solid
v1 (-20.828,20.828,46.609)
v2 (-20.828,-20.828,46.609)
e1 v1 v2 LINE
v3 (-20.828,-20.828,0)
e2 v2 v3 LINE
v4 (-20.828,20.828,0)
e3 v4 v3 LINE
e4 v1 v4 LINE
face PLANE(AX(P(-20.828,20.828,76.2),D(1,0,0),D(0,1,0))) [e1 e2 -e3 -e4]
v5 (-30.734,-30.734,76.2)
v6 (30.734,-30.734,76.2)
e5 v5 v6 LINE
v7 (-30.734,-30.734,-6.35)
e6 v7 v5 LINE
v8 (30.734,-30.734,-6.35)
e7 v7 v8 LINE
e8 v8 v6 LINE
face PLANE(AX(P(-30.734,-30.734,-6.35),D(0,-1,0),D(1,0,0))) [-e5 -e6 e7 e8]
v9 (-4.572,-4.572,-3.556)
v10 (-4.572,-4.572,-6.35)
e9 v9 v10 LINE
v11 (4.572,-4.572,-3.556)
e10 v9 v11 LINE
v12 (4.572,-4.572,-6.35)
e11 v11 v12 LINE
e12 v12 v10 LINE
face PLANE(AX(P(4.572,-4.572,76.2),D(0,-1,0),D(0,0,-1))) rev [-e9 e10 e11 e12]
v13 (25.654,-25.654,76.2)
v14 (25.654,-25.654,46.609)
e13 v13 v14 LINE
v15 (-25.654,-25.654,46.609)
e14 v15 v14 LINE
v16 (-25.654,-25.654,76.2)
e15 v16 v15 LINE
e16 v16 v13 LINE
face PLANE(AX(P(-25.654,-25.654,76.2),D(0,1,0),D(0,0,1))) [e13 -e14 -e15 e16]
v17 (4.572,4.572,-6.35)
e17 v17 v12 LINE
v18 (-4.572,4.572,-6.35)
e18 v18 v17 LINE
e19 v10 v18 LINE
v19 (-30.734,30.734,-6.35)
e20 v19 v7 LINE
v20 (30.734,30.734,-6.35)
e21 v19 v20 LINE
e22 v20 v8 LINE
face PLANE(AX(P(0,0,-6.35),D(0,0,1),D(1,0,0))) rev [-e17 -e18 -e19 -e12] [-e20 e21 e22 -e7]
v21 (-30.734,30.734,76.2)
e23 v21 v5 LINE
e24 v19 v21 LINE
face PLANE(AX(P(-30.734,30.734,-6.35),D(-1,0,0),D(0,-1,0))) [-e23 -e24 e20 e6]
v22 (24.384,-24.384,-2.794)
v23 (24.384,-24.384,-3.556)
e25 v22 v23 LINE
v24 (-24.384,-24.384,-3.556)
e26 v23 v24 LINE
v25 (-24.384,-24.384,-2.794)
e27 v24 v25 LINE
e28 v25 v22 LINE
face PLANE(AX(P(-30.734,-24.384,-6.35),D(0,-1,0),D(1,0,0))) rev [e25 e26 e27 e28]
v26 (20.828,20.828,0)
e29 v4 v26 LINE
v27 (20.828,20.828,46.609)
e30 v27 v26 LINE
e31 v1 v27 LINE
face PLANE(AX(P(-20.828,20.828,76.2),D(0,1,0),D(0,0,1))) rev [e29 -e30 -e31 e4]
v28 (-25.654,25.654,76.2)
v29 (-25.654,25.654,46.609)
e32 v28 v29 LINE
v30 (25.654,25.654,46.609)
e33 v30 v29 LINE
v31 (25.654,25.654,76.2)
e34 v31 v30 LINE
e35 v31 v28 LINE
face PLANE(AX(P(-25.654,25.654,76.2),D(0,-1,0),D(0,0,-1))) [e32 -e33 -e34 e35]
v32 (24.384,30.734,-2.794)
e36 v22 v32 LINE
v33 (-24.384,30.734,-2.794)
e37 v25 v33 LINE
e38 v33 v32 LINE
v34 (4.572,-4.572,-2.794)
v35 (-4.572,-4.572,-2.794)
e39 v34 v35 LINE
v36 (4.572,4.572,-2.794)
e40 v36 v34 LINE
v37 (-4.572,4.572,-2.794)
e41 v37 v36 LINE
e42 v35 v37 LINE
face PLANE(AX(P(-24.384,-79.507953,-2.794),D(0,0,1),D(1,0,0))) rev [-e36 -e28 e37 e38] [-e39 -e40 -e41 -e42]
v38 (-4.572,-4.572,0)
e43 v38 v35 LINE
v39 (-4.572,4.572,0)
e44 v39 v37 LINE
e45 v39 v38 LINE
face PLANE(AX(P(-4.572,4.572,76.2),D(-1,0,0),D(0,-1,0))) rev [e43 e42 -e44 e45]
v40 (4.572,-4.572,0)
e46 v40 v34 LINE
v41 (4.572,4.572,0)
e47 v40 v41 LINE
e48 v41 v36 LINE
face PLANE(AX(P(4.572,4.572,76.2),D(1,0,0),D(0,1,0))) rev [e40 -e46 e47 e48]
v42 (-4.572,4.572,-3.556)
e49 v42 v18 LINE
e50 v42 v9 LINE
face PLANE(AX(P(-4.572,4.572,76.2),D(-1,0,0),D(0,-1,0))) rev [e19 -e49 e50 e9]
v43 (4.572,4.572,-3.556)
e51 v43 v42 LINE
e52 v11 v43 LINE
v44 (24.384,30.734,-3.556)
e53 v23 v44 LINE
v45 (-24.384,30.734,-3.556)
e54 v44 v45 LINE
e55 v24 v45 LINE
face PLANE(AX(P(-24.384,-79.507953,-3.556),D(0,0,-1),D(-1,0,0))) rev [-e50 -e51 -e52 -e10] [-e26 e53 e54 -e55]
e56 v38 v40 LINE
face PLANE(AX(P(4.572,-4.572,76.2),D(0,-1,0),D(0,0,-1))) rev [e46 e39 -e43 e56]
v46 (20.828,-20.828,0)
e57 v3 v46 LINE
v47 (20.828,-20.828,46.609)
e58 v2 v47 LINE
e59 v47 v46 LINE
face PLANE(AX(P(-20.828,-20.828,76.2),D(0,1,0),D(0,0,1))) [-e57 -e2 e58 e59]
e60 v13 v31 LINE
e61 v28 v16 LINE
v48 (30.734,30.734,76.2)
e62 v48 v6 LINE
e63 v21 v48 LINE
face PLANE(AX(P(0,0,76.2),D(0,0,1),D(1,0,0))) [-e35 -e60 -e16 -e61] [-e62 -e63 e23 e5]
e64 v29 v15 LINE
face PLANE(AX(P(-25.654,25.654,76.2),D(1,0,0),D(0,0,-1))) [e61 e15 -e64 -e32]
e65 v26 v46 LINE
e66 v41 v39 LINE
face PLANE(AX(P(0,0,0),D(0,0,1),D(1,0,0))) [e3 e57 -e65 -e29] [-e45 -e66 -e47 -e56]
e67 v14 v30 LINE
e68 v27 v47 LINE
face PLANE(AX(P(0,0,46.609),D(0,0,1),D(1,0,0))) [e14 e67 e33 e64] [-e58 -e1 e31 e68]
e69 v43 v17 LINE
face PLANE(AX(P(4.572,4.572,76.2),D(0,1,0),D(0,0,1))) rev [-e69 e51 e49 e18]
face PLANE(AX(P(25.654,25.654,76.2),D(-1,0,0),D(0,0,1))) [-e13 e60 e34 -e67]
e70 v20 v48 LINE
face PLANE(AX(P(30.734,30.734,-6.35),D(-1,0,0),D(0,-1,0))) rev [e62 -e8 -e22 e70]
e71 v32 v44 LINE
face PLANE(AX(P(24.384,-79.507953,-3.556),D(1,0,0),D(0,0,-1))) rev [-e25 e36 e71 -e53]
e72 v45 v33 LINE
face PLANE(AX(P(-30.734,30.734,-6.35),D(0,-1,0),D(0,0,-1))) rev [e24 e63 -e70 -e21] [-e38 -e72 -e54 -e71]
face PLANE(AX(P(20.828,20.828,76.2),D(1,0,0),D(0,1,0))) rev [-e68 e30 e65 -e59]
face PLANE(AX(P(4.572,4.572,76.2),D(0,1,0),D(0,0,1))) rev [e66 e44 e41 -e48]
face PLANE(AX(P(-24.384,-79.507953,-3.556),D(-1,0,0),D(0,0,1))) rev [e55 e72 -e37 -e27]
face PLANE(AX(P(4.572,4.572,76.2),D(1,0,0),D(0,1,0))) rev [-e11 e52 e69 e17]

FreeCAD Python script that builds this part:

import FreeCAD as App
import Part
import Sketcher
Q = App.Units.Quantity

doc = App.newDocument("Part")
body = doc.addObject("PartDesign::Body", "Body")

# Sketch on XY plane
sketch1 = doc.addObject("Sketcher::SketchObject", "Sketch")
body.addObject(sketch1)
sketch1.AttachmentSupport = (doc.XY_Plane, [""])
sketch1.MapMode = "FlatFace"
sketch1.addGeometry(Part.LineSegment(App.Vector(-31, 31, 0), App.Vector(-31, -31, 0)), False)
sketch1.addGeometry(Part.LineSegment(App.Vector(-31, -31, 0), App.Vector(31, -31, 0)), False)
sketch1.addGeometry(Part.LineSegment(App.Vector(31, -31, 0), App.Vector(31, 31, 0)), False)
sketch1.addGeometry(Part.LineSegment(App.Vector(31, 31, 0), App.Vector(-31, 31, 0)), False)
sketch1.addConstraint(Sketcher.Constraint("Coincident", 0, 2, 1, 1))
sketch1.addConstraint(Sketcher.Constraint("Coincident", 1, 2, 2, 1))
sketch1.addConstraint(Sketcher.Constraint("Coincident", 2, 2, 3, 1))
sketch1.addConstraint(Sketcher.Constraint("Coincident", 3, 2, 0, 1))
sketch1.addConstraint(Sketcher.Constraint("Vertical", 0))
sketch1.addConstraint(Sketcher.Constraint("Horizontal", 1))
sketch1.addConstraint(Sketcher.Constraint("Vertical", 2))
sketch1.addConstraint(Sketcher.Constraint("Horizontal", 3))
sketch1.addConstraint(Sketcher.Constraint("Symmetric", 0, 2, 2, 2, -1, 1))
sketch1.addConstraint(Sketcher.Constraint("Equal", 3, 0))
sketch1.addConstraint(Sketcher.Constraint("DistanceX", 1, 1, 1, 2, Q("2.42 in")))
pad1 = doc.addObject("PartDesign::Pad", "Pad")
body.addObject(pad1)
pad1.Profile = sketch1
pad1.Type = "TwoLengths"
pad1.Length = Q("3 in")
pad1.Length2 = Q("0.25 in")

# Sketch on XY plane
sketch2 = doc.addObject("Sketcher::SketchObject", "Sketch001")
body.addObject(sketch2)
sketch2.AttachmentSupport = (doc.XY_Plane, [""])
sketch2.MapMode = "FlatFace"
sketch2.addGeometry(Part.LineSegment(App.Vector(-21, 21, 0), App.Vector(-21, -21, 0)), False)
sketch2.addGeometry(Part.LineSegment(App.Vector(-21, -21, 0), App.Vector(21, -21, 0)), False)
sketch2.addGeometry(Part.LineSegment(App.Vector(21, -21, 0), App.Vector(21, 21, 0)), False)
sketch2.addGeometry(Part.LineSegment(App.Vector(21, 21, 0), App.Vector(-21, 21, 0)), False)
sketch2.addConstraint(Sketcher.Constraint("Coincident", 0, 2, 1, 1))
sketch2.addConstraint(Sketcher.Constraint("Coincident", 1, 2, 2, 1))
sketch2.addConstraint(Sketcher.Constraint("Coincident", 2, 2, 3, 1))
sketch2.addConstraint(Sketcher.Constraint("Coincident", 3, 2, 0, 1))
sketch2.addConstraint(Sketcher.Constraint("Vertical", 0))
sketch2.addConstraint(Sketcher.Constraint("Horizontal", 1))
sketch2.addConstraint(Sketcher.Constraint("Vertical", 2))
sketch2.addConstraint(Sketcher.Constraint("Horizontal", 3))
sketch2.addConstraint(Sketcher.Constraint("Symmetric", 0, 2, 2, 2, -1, 1))
sketch2.addConstraint(Sketcher.Constraint("Equal", 3, 0))
sketch2.addConstraint(Sketcher.Constraint("DistanceX", 1, 1, 1, 2, Q("1.64 in")))
pocket1 = doc.addObject("PartDesign::Pocket", "Pocket")
body.addObject(pocket1)
pocket1.Profile = sketch2
pocket1.Type = "ThroughAll"
pocket1.Reversed = True

# Sketch on XY plane
sketch3 = doc.addObject("Sketcher::SketchObject", "Sketch002")
body.addObject(sketch3)
sketch3.AttachmentSupport = (doc.XY_Plane, [""])
sketch3.MapMode = "FlatFace"
sketch3.AttachmentOffset = App.Placement(App.Vector(0, 0, 1.835 * 25.4), App.Rotation())
sketch3.addGeometry(Part.LineSegment(App.Vector(-26, 26, 0), App.Vector(-26, -26, 0)), False)
sketch3.addGeometry(Part.LineSegment(App.Vector(-26, -26, 0), App.Vector(26, -26, 0)), False)
sketch3.addGeometry(Part.LineSegment(App.Vector(26, -26, 0), App.Vector(26, 26, 0)), False)
sketch3.addGeometry(Part.LineSegment(App.Vector(26, 26, 0), App.Vector(-26, 26, 0)), False)
sketch3.addConstraint(Sketcher.Constraint("Coincident", 0, 2, 1, 1))
sketch3.addConstraint(Sketcher.Constraint("Coincident", 1, 2, 2, 1))
sketch3.addConstraint(Sketcher.Constraint("Coincident", 2, 2, 3, 1))
sketch3.addConstraint(Sketcher.Constraint("Coincident", 3, 2, 0, 1))
sketch3.addConstraint(Sketcher.Constraint("Vertical", 0))
sketch3.addConstraint(Sketcher.Constraint("Horizontal", 1))
sketch3.addConstraint(Sketcher.Constraint("Vertical", 2))
sketch3.addConstraint(Sketcher.Constraint("Horizontal", 3))
sketch3.addConstraint(Sketcher.Constraint("Symmetric", 0, 2, 2, 2, -1, 1))
sketch3.addConstraint(Sketcher.Constraint("Equal", 3, 0))
sketch3.addConstraint(Sketcher.Constraint("DistanceX", 1, 1, 1, 2, Q("2.02 in")))
pocket2 = doc.addObject("PartDesign::Pocket", "Pocket001")
body.addObject(pocket2)
pocket2.Profile = sketch3
pocket2.Type = "ThroughAll"
pocket2.Reversed = True

# Sketch on XY plane
sketch4 = doc.addObject("Sketcher::SketchObject", "Sketch003")
body.addObject(sketch4)
sketch4.AttachmentSupport = (doc.XY_Plane, [""])
sketch4.MapMode = "FlatFace"
sketch4.AttachmentOffset = App.Placement(App.Vector(0, 0, -0.25 * 25.4), App.Rotation())
sketch4.addGeometry(Part.LineSegment(App.Vector(5, 5, 0), App.Vector(5, -5, 0)), False)
sketch4.addGeometry(Part.LineSegment(App.Vector(5, -5, 0), App.Vector(-5, -5, 0)), False)
sketch4.addGeometry(Part.LineSegment(App.Vector(-5, -5, 0), App.Vector(-5, 5, 0)), False)
sketch4.addGeometry(Part.LineSegment(App.Vector(-5, 5, 0), App.Vector(5, 5, 0)), False)
sketch4.addConstraint(Sketcher.Constraint("Coincident", 0, 2, 1, 1))
sketch4.addConstraint(Sketcher.Constraint("Coincident", 1, 2, 2, 1))
sketch4.addConstraint(Sketcher.Constraint("Coincident", 2, 2, 3, 1))
sketch4.addConstraint(Sketcher.Constraint("Coincident", 3, 2, 0, 1))
sketch4.addConstraint(Sketcher.Constraint("Vertical", 0))
sketch4.addConstraint(Sketcher.Constraint("Horizontal", 1))
sketch4.addConstraint(Sketcher.Constraint("Vertical", 2))
sketch4.addConstraint(Sketcher.Constraint("Horizontal", 3))
sketch4.addConstraint(Sketcher.Constraint("Symmetric", 0, 2, 2, 2, -1, 1))
sketch4.addConstraint(Sketcher.Constraint("Equal", 3, 0))
sketch4.addConstraint(Sketcher.Constraint("DistanceX", 1, 2, 1, 1, Q("0.36 in")))
pocket3 = doc.addObject("PartDesign::Pocket", "Pocket002")
body.addObject(pocket3)
pocket3.Profile = sketch4
pocket3.Type = "ThroughAll"
pocket3.Reversed = True

# Sketch on XZ plane
sketch5 = doc.addObject("Sketcher::SketchObject", "Sketch004")
body.addObject(sketch5)
sketch5.AttachmentSupport = (doc.XZ_Plane, [""])
sketch5.MapMode = "FlatFace"
sketch5.AttachmentOffset = App.Placement(App.Vector(0, 0, -1.21 * 25.4), App.Rotation())
sketch5.addGeometry(Part.LineSegment(App.Vector(-24.4, -3.6, 0), App.Vector(-24.4, -2.8, 0)), False)
sketch5.addGeometry(Part.LineSegment(App.Vector(-24.4, -2.8, 0), App.Vector(24.4, -2.8, 0)), False)
sketch5.addGeometry(Part.LineSegment(App.Vector(24.4, -2.8, 0), App.Vector(24.4, -3.6, 0)), False)
sketch5.addGeometry(Part.LineSegment(App.Vector(24.4, -3.6, 0), App.Vector(-24.4, -3.6, 0)), False)
sketch5.addConstraint(Sketcher.Constraint("Coincident", 0, 2, 1, 1))
sketch5.addConstraint(Sketcher.Constraint("Coincident", 1, 2, 2, 1))
sketch5.addConstraint(Sketcher.Constraint("Coincident", 2, 2, 3, 1))
sketch5.addConstraint(Sketcher.Constraint("Coincident", 3, 2, 0, 1))
sketch5.addConstraint(Sketcher.Constraint("Vertical", 0))
sketch5.addConstraint(Sketcher.Constraint("Horizontal", 1))
sketch5.addConstraint(Sketcher.Constraint("Vertical", 2))
sketch5.addConstraint(Sketcher.Constraint("Horizontal", 3))
sketch5.addConstraint(Sketcher.Constraint("DistanceX", 1, 1, 1, 2, Q("1.92 in")))
sketch5.addConstraint(Sketcher.Constraint("DistanceY", 0, 1, 0, 2, Q("0.03 in")))
sketch5.addConstraint(Sketcher.Constraint("DistanceX", 0, 2, -1, 1, Q("0.96 in")))
sketch5.addConstraint(Sketcher.Constraint("DistanceY", 0, 2, -1, 1, Q("0.11 in")))
pocket4 = doc.addObject("PartDesign::Pocket", "Pocket003")
body.addObject(pocket4)
pocket4.Profile = sketch5
pocket4.Length = Q("2.17 in")
pocket4.Reversed = True

doc.recompute()
